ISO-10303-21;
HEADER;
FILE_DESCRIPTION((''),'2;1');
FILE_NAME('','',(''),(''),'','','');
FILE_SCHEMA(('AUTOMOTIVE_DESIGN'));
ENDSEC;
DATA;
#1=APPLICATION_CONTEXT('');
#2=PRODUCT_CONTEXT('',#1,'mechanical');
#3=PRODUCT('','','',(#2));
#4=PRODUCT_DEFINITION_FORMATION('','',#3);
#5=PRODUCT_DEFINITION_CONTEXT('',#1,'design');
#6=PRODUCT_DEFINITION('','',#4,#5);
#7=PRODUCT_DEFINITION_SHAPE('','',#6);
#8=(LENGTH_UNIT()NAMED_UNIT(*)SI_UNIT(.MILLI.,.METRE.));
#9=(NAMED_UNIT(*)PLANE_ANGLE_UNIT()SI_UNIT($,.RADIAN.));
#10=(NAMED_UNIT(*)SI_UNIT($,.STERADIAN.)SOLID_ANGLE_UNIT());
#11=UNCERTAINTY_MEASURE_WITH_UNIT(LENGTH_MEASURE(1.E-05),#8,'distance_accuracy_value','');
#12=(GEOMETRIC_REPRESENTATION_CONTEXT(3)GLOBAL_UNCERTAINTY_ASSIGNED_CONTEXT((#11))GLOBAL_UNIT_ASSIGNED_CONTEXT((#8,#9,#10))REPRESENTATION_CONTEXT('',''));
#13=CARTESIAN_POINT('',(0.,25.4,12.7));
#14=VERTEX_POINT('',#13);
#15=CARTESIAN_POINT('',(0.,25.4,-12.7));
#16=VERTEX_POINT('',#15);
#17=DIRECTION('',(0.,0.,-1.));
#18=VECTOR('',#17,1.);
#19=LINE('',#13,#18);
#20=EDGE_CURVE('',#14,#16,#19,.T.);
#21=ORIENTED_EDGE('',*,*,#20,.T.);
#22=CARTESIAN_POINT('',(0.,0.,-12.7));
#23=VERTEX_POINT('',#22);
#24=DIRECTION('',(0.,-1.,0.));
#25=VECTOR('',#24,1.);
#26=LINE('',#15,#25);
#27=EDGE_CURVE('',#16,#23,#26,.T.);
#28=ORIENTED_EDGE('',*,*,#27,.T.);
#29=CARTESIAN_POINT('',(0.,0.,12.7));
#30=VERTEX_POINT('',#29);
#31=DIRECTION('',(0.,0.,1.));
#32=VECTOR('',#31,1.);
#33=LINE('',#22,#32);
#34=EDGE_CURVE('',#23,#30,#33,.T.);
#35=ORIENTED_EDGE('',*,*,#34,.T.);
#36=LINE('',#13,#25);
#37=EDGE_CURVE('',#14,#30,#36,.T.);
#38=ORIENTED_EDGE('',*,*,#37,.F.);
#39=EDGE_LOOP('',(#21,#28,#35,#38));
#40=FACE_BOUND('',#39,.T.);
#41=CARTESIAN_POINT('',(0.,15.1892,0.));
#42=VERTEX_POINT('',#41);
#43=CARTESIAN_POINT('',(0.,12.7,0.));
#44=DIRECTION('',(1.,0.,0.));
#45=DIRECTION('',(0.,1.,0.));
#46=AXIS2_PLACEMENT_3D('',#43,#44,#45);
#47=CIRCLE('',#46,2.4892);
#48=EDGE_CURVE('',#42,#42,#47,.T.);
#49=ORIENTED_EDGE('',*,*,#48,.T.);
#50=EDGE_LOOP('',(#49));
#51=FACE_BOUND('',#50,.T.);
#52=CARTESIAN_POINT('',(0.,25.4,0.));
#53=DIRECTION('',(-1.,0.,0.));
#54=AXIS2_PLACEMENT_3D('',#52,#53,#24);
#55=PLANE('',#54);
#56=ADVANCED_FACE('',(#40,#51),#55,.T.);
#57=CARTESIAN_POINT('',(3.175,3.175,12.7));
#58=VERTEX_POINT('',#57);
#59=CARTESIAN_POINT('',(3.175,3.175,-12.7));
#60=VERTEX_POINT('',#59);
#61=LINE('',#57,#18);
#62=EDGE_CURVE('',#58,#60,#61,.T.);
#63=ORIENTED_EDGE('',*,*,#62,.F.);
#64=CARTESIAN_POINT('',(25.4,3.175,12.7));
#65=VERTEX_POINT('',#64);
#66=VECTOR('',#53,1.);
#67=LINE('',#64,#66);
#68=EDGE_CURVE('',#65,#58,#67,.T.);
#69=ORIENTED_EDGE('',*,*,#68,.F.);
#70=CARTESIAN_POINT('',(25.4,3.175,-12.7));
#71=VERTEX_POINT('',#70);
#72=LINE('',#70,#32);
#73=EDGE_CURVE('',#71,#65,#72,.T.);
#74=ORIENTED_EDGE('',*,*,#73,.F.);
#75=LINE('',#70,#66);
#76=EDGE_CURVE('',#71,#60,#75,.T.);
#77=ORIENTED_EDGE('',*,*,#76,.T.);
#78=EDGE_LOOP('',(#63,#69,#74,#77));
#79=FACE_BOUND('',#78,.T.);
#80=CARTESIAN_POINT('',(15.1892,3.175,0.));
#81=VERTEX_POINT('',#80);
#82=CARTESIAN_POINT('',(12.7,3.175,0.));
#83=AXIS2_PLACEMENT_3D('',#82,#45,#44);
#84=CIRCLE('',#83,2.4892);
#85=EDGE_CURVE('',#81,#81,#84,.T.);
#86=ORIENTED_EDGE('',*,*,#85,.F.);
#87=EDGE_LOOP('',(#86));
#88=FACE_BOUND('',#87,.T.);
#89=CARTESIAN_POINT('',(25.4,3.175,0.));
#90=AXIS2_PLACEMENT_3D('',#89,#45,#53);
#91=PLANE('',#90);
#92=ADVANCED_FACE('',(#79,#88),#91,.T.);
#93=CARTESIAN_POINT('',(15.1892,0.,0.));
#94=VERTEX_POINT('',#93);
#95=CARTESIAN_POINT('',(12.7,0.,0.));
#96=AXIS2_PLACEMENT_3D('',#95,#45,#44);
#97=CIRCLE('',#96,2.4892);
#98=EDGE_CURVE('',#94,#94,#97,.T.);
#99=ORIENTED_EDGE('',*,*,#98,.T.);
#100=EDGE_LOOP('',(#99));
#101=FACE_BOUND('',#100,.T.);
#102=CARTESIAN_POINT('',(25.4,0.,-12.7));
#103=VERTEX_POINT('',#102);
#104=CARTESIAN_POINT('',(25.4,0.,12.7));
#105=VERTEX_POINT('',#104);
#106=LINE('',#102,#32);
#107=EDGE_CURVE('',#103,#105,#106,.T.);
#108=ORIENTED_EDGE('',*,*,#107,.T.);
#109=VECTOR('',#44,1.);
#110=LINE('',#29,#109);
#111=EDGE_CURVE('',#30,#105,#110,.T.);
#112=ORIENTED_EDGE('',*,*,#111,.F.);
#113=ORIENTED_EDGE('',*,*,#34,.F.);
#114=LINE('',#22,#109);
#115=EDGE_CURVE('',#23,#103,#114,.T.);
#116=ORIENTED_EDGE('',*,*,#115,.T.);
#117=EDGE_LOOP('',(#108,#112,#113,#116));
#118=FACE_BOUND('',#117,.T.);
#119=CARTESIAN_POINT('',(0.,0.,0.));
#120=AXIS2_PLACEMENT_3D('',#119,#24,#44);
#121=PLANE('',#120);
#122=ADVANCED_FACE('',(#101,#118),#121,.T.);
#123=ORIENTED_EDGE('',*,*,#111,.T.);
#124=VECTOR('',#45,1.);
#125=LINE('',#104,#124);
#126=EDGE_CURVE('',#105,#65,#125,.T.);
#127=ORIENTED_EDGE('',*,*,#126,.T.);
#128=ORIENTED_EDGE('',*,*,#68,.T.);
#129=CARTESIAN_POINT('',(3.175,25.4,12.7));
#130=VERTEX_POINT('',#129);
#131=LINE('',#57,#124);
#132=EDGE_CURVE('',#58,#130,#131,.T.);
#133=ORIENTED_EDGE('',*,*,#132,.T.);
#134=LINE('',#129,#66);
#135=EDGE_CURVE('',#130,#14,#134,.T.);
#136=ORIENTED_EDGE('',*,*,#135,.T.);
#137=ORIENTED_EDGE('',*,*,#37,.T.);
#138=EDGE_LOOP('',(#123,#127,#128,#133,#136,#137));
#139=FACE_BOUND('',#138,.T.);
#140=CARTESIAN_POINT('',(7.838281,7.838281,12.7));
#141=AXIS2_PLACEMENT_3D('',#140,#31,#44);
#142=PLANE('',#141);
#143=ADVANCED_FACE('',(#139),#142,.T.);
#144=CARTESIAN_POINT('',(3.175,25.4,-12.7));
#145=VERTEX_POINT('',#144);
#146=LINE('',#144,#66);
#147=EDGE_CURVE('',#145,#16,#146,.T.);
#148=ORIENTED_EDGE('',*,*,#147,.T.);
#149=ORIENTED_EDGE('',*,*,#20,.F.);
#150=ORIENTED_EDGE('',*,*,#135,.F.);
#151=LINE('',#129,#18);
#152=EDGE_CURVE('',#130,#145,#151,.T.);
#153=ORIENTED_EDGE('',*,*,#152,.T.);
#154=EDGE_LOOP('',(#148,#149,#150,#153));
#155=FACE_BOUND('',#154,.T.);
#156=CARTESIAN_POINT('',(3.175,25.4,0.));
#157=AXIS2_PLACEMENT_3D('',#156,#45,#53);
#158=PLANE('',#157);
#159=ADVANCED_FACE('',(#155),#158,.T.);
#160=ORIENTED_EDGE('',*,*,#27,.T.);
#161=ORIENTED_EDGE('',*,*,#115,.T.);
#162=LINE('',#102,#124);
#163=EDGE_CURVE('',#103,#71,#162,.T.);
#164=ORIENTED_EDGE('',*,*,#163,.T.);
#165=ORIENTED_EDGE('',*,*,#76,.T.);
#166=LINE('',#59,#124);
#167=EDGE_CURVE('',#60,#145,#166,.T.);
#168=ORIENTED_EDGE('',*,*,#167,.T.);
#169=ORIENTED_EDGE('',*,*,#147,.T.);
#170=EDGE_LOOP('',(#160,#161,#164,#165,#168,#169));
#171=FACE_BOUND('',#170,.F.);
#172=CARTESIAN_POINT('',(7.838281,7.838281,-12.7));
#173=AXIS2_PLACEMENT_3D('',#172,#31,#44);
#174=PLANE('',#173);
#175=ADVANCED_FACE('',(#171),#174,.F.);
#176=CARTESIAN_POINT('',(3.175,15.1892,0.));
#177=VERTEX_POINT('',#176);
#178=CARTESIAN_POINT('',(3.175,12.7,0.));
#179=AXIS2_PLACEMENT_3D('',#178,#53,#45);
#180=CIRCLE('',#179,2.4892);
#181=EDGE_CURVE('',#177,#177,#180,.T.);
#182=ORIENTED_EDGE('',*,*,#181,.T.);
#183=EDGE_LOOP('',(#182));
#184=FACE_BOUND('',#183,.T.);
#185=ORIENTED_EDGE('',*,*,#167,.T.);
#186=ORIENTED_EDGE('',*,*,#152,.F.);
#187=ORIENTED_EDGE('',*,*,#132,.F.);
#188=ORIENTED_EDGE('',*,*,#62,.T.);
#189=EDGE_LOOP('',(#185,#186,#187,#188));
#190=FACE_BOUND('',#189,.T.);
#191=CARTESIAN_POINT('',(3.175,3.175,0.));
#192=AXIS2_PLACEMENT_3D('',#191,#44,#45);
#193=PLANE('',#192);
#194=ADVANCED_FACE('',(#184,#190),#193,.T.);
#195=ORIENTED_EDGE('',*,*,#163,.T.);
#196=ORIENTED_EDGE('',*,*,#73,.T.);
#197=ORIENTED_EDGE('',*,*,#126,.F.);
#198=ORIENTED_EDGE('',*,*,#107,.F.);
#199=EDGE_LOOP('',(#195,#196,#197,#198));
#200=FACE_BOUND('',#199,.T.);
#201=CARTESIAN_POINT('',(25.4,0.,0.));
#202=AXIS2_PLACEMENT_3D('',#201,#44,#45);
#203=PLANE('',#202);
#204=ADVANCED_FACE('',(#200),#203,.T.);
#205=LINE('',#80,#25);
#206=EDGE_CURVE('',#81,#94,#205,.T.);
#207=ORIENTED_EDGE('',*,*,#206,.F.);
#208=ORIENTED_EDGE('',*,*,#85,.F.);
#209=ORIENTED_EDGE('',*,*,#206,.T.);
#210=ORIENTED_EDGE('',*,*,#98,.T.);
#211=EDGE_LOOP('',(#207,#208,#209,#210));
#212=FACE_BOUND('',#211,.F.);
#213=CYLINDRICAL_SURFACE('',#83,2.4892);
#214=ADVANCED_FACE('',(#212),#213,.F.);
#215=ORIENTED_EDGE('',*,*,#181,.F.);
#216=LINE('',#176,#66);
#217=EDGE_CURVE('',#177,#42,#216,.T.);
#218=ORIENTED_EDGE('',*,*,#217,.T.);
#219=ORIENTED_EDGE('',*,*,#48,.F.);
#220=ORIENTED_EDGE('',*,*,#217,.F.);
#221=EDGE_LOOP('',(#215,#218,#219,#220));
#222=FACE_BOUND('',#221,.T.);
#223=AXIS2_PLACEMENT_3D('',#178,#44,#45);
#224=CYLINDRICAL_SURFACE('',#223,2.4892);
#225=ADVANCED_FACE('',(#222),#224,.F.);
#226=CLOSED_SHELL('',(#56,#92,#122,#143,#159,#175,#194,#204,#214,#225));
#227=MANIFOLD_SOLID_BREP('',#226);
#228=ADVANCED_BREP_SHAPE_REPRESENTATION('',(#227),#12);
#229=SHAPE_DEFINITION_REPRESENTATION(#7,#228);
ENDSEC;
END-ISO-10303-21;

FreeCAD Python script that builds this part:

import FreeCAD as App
import Part
import Sketcher
Q = App.Units.Quantity


def add_polygon(sketch, points):
    """Adds a closed chain of lines whose ends are joined by coincident constraints."""
    first, n = sketch.GeometryCount, len(points)
    for a, b in zip(points, points[1:] + points[:1]):
        sketch.addGeometry(Part.LineSegment(App.Vector(*a, 0), App.Vector(*b, 0)), False)
    for i in range(n):
        sketch.addConstraint(Sketcher.Constraint("Coincident", first + i, 2, first + (i + 1) % n, 1))

doc = App.newDocument("Part")
params = doc.addObject("Spreadsheet::Sheet", "Params")
for row, (alias, value) in enumerate([
    ("sketch1_width", "1 in"),
    ("sketch1_width2", "0.875 in"),
    ("pad1_length", "1 in"),
    ("sketch2_diameter", "0.196 in"),
], start=1):
    params.set(f"A{row}", alias)
    params.set(f"B{row}", "=" + value)
    params.setAlias(f"B{row}", alias)

body = doc.addObject("PartDesign::Body", "Body")

sketch1 = body.newObject("Sketcher::SketchObject", "Sketch")
sketch1.AttachmentSupport = (doc.getObject("XY_Plane"), [""])
sketch1.MapMode = "FlatFace"
add_polygon(sketch1, [(0, 25.4), (0, 0), (25.4, 0), (25.4, 3.2), (3.2, 3.2), (3.2, 25.4)])
sketch1.addConstraint([
    Sketcher.Constraint("Vertical", 0),
    Sketcher.Constraint("Horizontal", 1),
    Sketcher.Constraint("Vertical", 2),
    Sketcher.Constraint("Horizontal", 3),
    Sketcher.Constraint("Vertical", 4),
    Sketcher.Constraint("Horizontal", 5),
    Sketcher.Constraint("Coincident", 0, 2, -1, 1),
    Sketcher.Constraint("Equal", 1, 0),
    Sketcher.Constraint("Equal", 5, 2),
    Sketcher.Constraint("DistanceX", 1, 1, 1, 2, Q("1 in")),
    Sketcher.Constraint("DistanceX", 3, 2, 3, 1, Q("0.875 in")),
])
sketch1.setExpression("Constraints[15]", "Params.sketch1_width")
sketch1.setExpression("Constraints[16]", "Params.sketch1_width2")
pad1 = body.newObject("PartDesign::Pad", "Pad")
pad1.Profile = sketch1
pad1.setExpression("Length", "Params.pad1_length")
pad1.Midplane = True

sketch2 = body.newObject("Sketcher::SketchObject", "Sketch001")
sketch2.AttachmentSupport = (doc.getObject("XZ_Plane"), [""])
sketch2.MapMode = "FlatFace"
sketch2.AttachmentOffset = App.Placement(App.Vector(0, 0, -0.125 * 25.4), App.Rotation())
sketch2.addGeometry(Part.Circle(App.Vector(12.7, 0, 0), App.Vector(0, 0, 1), 2.5), False)
sketch2.addConstraint([
    Sketcher.Constraint("PointOnObject", 0, 3, -1),
    Sketcher.Constraint("Diameter", 0, Q("0.196 in")),
    Sketcher.Constraint("DistanceX", -1, 1, 0, 3, Q("0.5 in")),
])
sketch2.setExpression("Constraints[1]", "Params.sketch2_diameter")
pocket1 = body.newObject("PartDesign::Pocket", "Pocket")
pocket1.Profile = sketch2
pocket1.Type = "ThroughAll"
pocket1.Reversed = True
doc.recompute()

datumplane = body.newObject("PartDesign::Plane", "DatumPlane")
datumplane.Placement = App.Placement(App.Vector(0, 0, 0), App.Rotation(App.Vector(-0.707106781, -0.707106781, 0), App.Vector(0, 0, -1), App.Vector(0.707106781, -0.707106781, 0), "ZXY"))
mirrored = body.newObject("PartDesign::Mirrored", "Mirrored")
mirrored.Originals = [pocket1]
mirrored.MirrorPlane = (datumplane, [""])
body.Tip = mirrored

doc.recompute()
